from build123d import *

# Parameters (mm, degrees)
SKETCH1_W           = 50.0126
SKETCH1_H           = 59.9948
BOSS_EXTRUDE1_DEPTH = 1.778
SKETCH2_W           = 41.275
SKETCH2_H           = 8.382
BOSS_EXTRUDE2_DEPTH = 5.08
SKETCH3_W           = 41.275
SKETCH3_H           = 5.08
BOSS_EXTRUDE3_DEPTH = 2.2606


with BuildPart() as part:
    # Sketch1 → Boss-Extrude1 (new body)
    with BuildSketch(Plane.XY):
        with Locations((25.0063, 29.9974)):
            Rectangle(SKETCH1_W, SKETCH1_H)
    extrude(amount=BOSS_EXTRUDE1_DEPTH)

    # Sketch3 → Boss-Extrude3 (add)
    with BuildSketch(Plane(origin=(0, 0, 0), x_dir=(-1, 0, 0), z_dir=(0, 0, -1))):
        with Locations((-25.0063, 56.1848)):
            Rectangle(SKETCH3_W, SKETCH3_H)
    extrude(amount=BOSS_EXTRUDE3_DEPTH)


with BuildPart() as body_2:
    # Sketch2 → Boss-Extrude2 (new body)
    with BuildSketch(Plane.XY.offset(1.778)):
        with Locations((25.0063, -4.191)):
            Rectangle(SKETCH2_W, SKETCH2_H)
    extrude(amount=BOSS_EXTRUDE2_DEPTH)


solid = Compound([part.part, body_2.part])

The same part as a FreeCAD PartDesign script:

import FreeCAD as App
import Part
import Sketcher

V = App.Vector
Q = App.Units.Quantity


def add_polygon(sketch, points):
    """Adds a closed chain of lines whose ends are joined by coincident constraints."""
    first, n = sketch.GeometryCount, len(points)
    for a, b in zip(points, points[1:] + points[:1]):
        sketch.addGeometry(Part.LineSegment(App.Vector(*a, 0), App.Vector(*b, 0)), False)
    for i in range(n):
        sketch.addConstraint(Sketcher.Constraint("Coincident", first + i, 2, first + (i + 1) % n, 1))

doc = App.newDocument("Part")
params = doc.addObject("Spreadsheet::Sheet", "Params")
for row, (alias, value) in enumerate([
    ("sketch1_width", "1.969 in"),
    ("sketch1_height", "2.362 in"),
    ("pad1_length", "0.07 in"),
    ("sketch2_height", "0.2 in"),
    ("sketch2_width", "1.625 in"),
    ("pad2_length", "0.089 in"),
    ("sketch3_height", "0.33 in"),
    ("sketch3_width", "1.625 in"),
    ("pad3_length", "0.2 in"),
], start=1):
    params.set(f"A{row}", alias)
    params.set(f"B{row}", "=" + value)
    params.setAlias(f"B{row}", alias)

body = doc.addObject("PartDesign::Body", "Body")

sketch1 = body.newObject("Sketcher::SketchObject", "Sketch")
sketch1.AttachmentSupport = (doc.getObject("XY_Plane"), [""])
sketch1.MapMode = "FlatFace"
add_polygon(sketch1, [(0, 60), (0, 0), (50, 0), (50, 60)])
sketch1.addConstraint([
    Sketcher.Constraint("Vertical", 0),
    Sketcher.Constraint("Horizontal", 1),
    Sketcher.Constraint("Vertical", 2),
    Sketcher.Constraint("Horizontal", 3),
    Sketcher.Constraint("Coincident", 0, 2, -1, 1),
    Sketcher.Constraint("DistanceX", 1, 1, 1, 2, Q("1.969 in")),
    Sketcher.Constraint("DistanceY", 0, 2, 0, 1, Q("2.362 in")),
])
sketch1.setExpression("Constraints[9]", "Params.sketch1_width")
sketch1.setExpression("Constraints[10]", "Params.sketch1_height")
pad1 = body.newObject("PartDesign::Pad", "Pad")
pad1.Profile = sketch1
pad1.setExpression("Length", "Params.pad1_length")

sketch2 = body.newObject("Sketcher::SketchObject", "Sketch001")
sketch2.AttachmentSupport = (doc.getObject("XY_Plane"), [""])
sketch2.MapMode = "FlatFace"
add_polygon(sketch2, [(46, 59), (46, 54), (4, 54), (4, 59)])
sketch2.addConstraint([
    Sketcher.Constraint("Vertical", 0),
    Sketcher.Constraint("Horizontal", 1),
    Sketcher.Constraint("Vertical", 2),
    Sketcher.Constraint("Horizontal", 3),
    Sketcher.Constraint("DistanceY", 0, 2, 0, 1, Q("0.2 in")),
    Sketcher.Constraint("DistanceX", 1, 2, 1, 1, Q("1.625 in")),
    Sketcher.Constraint("DistanceX", -1, 1, 0, 2, Q("1.797 in")),
    Sketcher.Constraint("DistanceY", -1, 1, 0, 2, Q("2.112 in")),
])
sketch2.setExpression("Constraints[8]", "Params.sketch2_height")
sketch2.setExpression("Constraints[9]", "Params.sketch2_width")
pad2 = body.newObject("PartDesign::Pad", "Pad001")
pad2.Profile = sketch2
pad2.setExpression("Length", "Params.pad2_length")
pad2.Reversed = True
body2 = doc.addObject("PartDesign::Body", "Body001")

sketch3 = body2.newObject("Sketcher::SketchObject", "Sketch002")
sketch3.AttachmentSupport = (doc.getObject("XY_Plane001"), [""])
sketch3.MapMode = "FlatFace"
sketch3.AttachmentOffset = App.Placement(V(0, 0, 0.07 * 25.4), App.Rotation())
add_polygon(sketch3, [(4, 0), (4, -8), (46, -8), (46, 0)])
sketch3.addConstraint([
    Sketcher.Constraint("Vertical", 0),
    Sketcher.Constraint("Horizontal", 1),
    Sketcher.Constraint("Vertical", 2),
    Sketcher.Constraint("Horizontal", 3),
    Sketcher.Constraint("PointOnObject", 2, 2, -1),
    Sketcher.Constraint("DistanceY", 0, 2, 0, 1, Q("0.33 in")),
    Sketcher.Constraint("DistanceX", 1, 1, 1, 2, Q("1.625 in")),
    Sketcher.Constraint("DistanceX", -1, 1, 0, 2, Q("0.172 in")),
])
sketch3.setExpression("Constraints[9]", "Params.sketch3_height")
sketch3.setExpression("Constraints[10]", "Params.sketch3_width")
pad3 = body2.newObject("PartDesign::Pad", "Pad002")
pad3.Profile = sketch3
pad3.setExpression("Length", "Params.pad3_length")

doc.recompute()
